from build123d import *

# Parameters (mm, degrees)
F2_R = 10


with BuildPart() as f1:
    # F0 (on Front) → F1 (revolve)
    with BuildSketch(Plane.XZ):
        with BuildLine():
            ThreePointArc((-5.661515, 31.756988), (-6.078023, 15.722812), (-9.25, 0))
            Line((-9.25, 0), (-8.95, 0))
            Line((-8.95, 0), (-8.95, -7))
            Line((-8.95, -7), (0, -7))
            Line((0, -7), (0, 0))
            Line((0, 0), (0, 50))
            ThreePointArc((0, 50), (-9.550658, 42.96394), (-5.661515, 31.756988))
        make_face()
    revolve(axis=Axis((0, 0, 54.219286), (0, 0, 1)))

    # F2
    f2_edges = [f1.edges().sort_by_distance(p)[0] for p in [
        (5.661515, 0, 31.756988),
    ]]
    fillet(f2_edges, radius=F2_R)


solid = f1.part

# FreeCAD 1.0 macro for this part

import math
import FreeCAD as App
import Part
import Sketcher


def edges_at(feature, points):
    """Names of the edges that pass closest to the given points."""
    edges = feature.Shape.Edges
    near = lambda p: min(range(len(edges)), key=lambda i: edges[i].distToShape(Part.Vertex(*p))[0])
    return sorted({f"Edge{near(p) + 1}" for p in points})

doc = App.newDocument("Part")
body = doc.addObject("PartDesign::Body", "Body")

# Sketch on XZ plane
sketch1 = body.newObject("Sketcher::SketchObject", "Sketch")
sketch1.AttachmentSupport = (doc.getObject("XZ_Plane"), [""])
sketch1.MapMode = "FlatFace"
sketch1.addGeometry([
    Part.ArcOfCircle(Part.Circle(App.Vector(-98.27, 26.14, 0), App.Vector(0, 0, 1), 92.78), math.radians(-16.36), math.radians(3.47)),  # 0
    Part.LineSegment(App.Vector(-9.25, 0, 0), App.Vector(-8.95, 0, 0)),  # 1
    Part.LineSegment(App.Vector(-8.95, 0, 0), App.Vector(-8.95, -7, 0)),  # 2
    Part.LineSegment(App.Vector(-8.95, -7, 0), App.Vector(0, -7, 0)),  # 3
    Part.LineSegment(App.Vector(0, -7, 0), App.Vector(0, 50, 0)),  # 4
    Part.ArcOfCircle(Part.Circle(App.Vector(0, 40, 0), App.Vector(0, 0, 1), 10), math.radians(90), math.radians(236)),  # 5
], False)
sketch1.addConstraint([
    Sketcher.Constraint("Coincident", 0, 1, 1, 1),
    Sketcher.Constraint("Coincident", 1, 2, 2, 1),
    Sketcher.Constraint("Coincident", 2, 2, 3, 1),
    Sketcher.Constraint("Coincident", 3, 2, 4, 1),
    Sketcher.Constraint("Coincident", 4, 2, 5, 1),
    Sketcher.Constraint("Coincident", 5, 2, 0, 2),
    Sketcher.Constraint("Horizontal", 1),
    Sketcher.Constraint("Vertical", 2),
    Sketcher.Constraint("Horizontal", 3),
    Sketcher.Constraint("Vertical", 4),
    Sketcher.Constraint("PointOnObject", 5, 3, -2),
    Sketcher.Constraint("PointOnObject", 0, 1, -1),
    Sketcher.Constraint("PointOnObject", 3, 2, -2),
    Sketcher.Constraint("Radius", 5, 10.0),
    Sketcher.Constraint("DistanceY", 2, 2, 2, 1, 7.0),
    Sketcher.Constraint("DistanceY", 4, 1, 4, 2, 57.0),
    Sketcher.Constraint("DistanceX", 1, 1, 1, 2, 0.3),
    Sketcher.Constraint("DistanceX", 3, 1, 3, 2, 8.95),
    Sketcher.Constraint("Radius", 0, 92.775983),
    Sketcher.Constraint("DistanceX", 0, 3, -1, 1, 98.267308),
])
revolution = body.newObject("PartDesign::Revolution", "Revolution")
revolution.Profile = sketch1
revolution.ReferenceAxis = (sketch1, ["V_Axis"])
revolution.Angle = 360
doc.recompute()

fillet = body.newObject("PartDesign::Fillet", "Fillet")
fillet.Base = (revolution, edges_at(revolution, [(5.662, 0, 31.757)]))
fillet.Radius = 10

doc.recompute()
